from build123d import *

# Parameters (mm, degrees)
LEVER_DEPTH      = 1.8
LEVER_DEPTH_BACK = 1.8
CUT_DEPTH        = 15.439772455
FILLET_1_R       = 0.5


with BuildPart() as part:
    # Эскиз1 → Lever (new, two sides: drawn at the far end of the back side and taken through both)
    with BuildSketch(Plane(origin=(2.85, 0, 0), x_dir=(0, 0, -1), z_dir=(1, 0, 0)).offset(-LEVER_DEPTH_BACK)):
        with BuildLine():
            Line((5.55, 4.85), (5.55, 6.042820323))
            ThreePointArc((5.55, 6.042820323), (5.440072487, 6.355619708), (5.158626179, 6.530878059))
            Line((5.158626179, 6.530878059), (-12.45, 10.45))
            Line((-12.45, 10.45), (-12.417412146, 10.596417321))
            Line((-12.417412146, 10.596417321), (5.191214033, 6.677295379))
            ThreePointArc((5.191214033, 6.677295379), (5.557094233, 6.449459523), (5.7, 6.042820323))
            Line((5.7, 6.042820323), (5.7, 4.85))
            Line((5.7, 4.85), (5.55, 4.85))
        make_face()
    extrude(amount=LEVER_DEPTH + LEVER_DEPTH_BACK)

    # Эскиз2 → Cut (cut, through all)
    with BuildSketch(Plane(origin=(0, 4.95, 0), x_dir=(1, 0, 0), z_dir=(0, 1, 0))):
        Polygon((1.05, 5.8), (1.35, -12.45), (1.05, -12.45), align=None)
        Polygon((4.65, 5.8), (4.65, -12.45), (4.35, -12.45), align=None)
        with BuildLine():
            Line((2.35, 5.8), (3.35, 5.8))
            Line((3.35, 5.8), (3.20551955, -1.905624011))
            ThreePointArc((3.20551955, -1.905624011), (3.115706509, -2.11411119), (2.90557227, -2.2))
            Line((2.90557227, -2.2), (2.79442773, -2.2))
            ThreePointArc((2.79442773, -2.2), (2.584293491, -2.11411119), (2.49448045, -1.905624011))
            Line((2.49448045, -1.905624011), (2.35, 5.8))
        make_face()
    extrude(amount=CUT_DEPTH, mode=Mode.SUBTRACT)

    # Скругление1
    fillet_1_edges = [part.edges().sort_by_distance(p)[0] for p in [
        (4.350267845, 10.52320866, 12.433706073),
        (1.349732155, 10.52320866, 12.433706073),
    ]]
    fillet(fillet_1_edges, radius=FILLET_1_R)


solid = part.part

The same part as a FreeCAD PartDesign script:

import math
import FreeCAD as App
import Part
import Sketcher

V = App.Vector


def edges_at(feature, points):
    """Names of the edges that pass closest to the given points."""
    edges = feature.Shape.Edges
    near = lambda p: min(range(len(edges)), key=lambda i: edges[i].distToShape(Part.Vertex(*p))[0])
    return sorted({f"Edge{near(p) + 1}" for p in points})

doc = App.newDocument("Part")
body = doc.addObject("PartDesign::Body", "Body")

# Sketch on YZ plane
sketch1 = body.newObject("Sketcher::SketchObject", "Sketch")
sketch1.AttachmentSupport = (doc.getObject("YZ_Plane"), [""])
sketch1.MapMode = "FlatFace"
sketch1.AttachmentOffset = App.Placement(V(0, 0, 2.85), App.Rotation())
sketch1.addGeometry([
    Part.LineSegment(V(6.04, -5.55, 0), V(4.85, -5.55, 0)),  # 0
    Part.LineSegment(V(4.85, -5.55, 0), V(4.85, -5.7, 0)),  # 1
    Part.LineSegment(V(4.85, -5.7, 0), V(6.04, -5.7, 0)),  # 2
    Part.ArcOfCircle(Part.Circle(V(6.04, -5.05, 0), V(0, 0, 1), 0.65), math.radians(-90), math.radians(-13)),  # 3
    Part.LineSegment(V(6.68, -5.19, 0), V(10.6, 12.42, 0)),  # 4
    Part.LineSegment(V(10.6, 12.42, 0), V(10.45, 12.45, 0)),  # 5
    Part.LineSegment(V(10.45, 12.45, 0), V(6.53, -5.16, 0)),  # 6
    Part.ArcOfCircle(Part.Circle(V(6.04, -5.05, 0), V(0, 0, 1), 0.5), math.radians(-90), math.radians(-13)),  # 7
], False)
sketch1.addConstraint([
    Sketcher.Constraint("Coincident", 0, 2, 1, 1),
    Sketcher.Constraint("Coincident", 1, 2, 2, 1),
    Sketcher.Constraint("Tangent", 2, 2, 3, 1),
    Sketcher.Constraint("Tangent", 3, 2, 4, 1),
    Sketcher.Constraint("Coincident", 4, 2, 5, 1),
    Sketcher.Constraint("Coincident", 5, 2, 6, 1),
    Sketcher.Constraint("Tangent", 6, 2, 7, 2),
    Sketcher.Constraint("Tangent", 7, 1, 0, 1),
    Sketcher.Constraint("Horizontal", 0),
    Sketcher.Constraint("Vertical", 1),
    Sketcher.Constraint("Horizontal", 2),
    Sketcher.Constraint("Coincident", 7, 3, 3, 3),
    Sketcher.Constraint("Perpendicular", 4, 5),
    Sketcher.Constraint("Perpendicular", 5, 6),
    Sketcher.Constraint("Radius", 7, 0.5),
    Sketcher.Constraint("Radius", 3, 0.65),
    Sketcher.Constraint("DistanceY", 1, 2, -1, 1, 5.7),
    Sketcher.Constraint("DistanceY", 7, 3, 5, 2, 17.5),
    Sketcher.Constraint("DistanceX", -1, 1, 0, 2, 4.85),
    Sketcher.Constraint("DistanceX", -1, 1, 5, 2, 10.45),
    Sketcher.Constraint("DistanceX", 0, 2, 0, 1, 1.19282),
])
pad1 = body.newObject("PartDesign::Pad", "Pad")
pad1.Profile = sketch1
pad1.Type = "TwoLengths"
pad1.Length = 1.8
pad1.Length2 = 1.8

# Sketch on XZ plane
sketch2 = body.newObject("Sketcher::SketchObject", "Sketch001")
sketch2.AttachmentSupport = (doc.getObject("XZ_Plane"), [""])
sketch2.MapMode = "FlatFace"
sketch2.AttachmentOffset = App.Placement(V(0, 0, -4.95), App.Rotation())
sketch2.addGeometry([
    Part.LineSegment(V(1.35, 12.45, 0), V(1.05, -5.8, 0)),  # 0
    Part.LineSegment(V(1.05, -5.8, 0), V(1.05, 12.45, 0)),  # 1
    Part.LineSegment(V(1.05, 12.45, 0), V(1.35, 12.45, 0)),  # 2
    Part.LineSegment(V(4.65, 12.45, 0), V(4.65, -5.8, 0)),  # 3
    Part.LineSegment(V(4.65, -5.8, 0), V(4.35, 12.45, 0)),  # 4
    Part.LineSegment(V(4.35, 12.45, 0), V(4.65, 12.45, 0)),  # 5
    Part.LineSegment(V(3.35, -5.8, 0), V(2.35, -5.8, 0)),  # 6
    Part.LineSegment(V(2.35, -5.8, 0), V(2.49, 1.91, 0)),  # 7
    Part.ArcOfCircle(Part.Circle(V(2.79, 1.9, 0), V(0, 0, 1), 0.3), math.radians(90), math.radians(179)),  # 8
    Part.LineSegment(V(2.79, 2.2, 0), V(2.91, 2.2, 0)),  # 9
    Part.ArcOfCircle(Part.Circle(V(2.91, 1.9, 0), V(0, 0, 1), 0.3), math.radians(1), math.radians(90)),  # 10
    Part.LineSegment(V(3.21, 1.91, 0), V(3.35, -5.8, 0)),  # 11
], False)
sketch2.addConstraint([
    Sketcher.Constraint("Coincident", 0, 2, 1, 1),
    Sketcher.Constraint("Coincident", 1, 2, 2, 1),
    Sketcher.Constraint("Coincident", 2, 2, 0, 1),
    Sketcher.Constraint("Coincident", 3, 2, 4, 1),
    Sketcher.Constraint("Coincident", 4, 2, 5, 1),
    Sketcher.Constraint("Coincident", 5, 2, 3, 1),
    Sketcher.Constraint("Coincident", 6, 2, 7, 1),
    Sketcher.Constraint("Tangent", 7, 2, 8, 2),
    Sketcher.Constraint("Tangent", 8, 1, 9, 1),
    Sketcher.Constraint("Tangent", 9, 2, 10, 2),
    Sketcher.Constraint("Tangent", 10, 1, 11, 1),
    Sketcher.Constraint("Coincident", 11, 2, 6, 1),
    Sketcher.Constraint("Vertical", 1),
    Sketcher.Constraint("Horizontal", 2),
    Sketcher.Constraint("Vertical", 3),
    Sketcher.Constraint("Horizontal", 5),
    Sketcher.Constraint("Horizontal", 6),
    Sketcher.Constraint("Horizontal", 9),
    Sketcher.Constraint("Equal", 8, 10),
    Sketcher.Constraint("Horizontal", 0, 2, 3, 2),
    Sketcher.Constraint("Horizontal", 2, 2, 4, 2),
    Sketcher.Constraint("Horizontal", 3, 2, 6, 2),
    Sketcher.Constraint("Horizontal", 7, 2, 10, 1),
    Sketcher.Constraint("Equal", 2, 5),
    Sketcher.Constraint("Radius", 8, 0.3),
    Sketcher.Constraint("DistanceX", 6, 2, 6, 1, 1.0),
    Sketcher.Constraint("DistanceX", 2, 1, 2, 2, 0.3),
    Sketcher.Constraint("DistanceX", 2, 2, 4, 2, 3.0),
    Sketcher.Constraint("DistanceX", 2, 2, 6, 2, 1.0),
    Sketcher.Constraint("DistanceY", 6, 2, 8, 1, 8.0),
    Sketcher.Constraint("DistanceY", 1, 1, 1, 2, 18.25),
    Sketcher.Constraint("DistanceY", -1, 1, 8, 3, 1.9),
    Sketcher.Constraint("DistanceX", -1, 1, 0, 2, 1.05),
    Sketcher.Constraint("Distance", 7, 7.706978),
])
pocket1 = body.newObject("PartDesign::Pocket", "Pocket")
pocket1.Profile = sketch2
pocket1.Type = "ThroughAll"
doc.recompute()

fillet = body.newObject("PartDesign::Fillet", "Fillet")
fillet.Base = (pocket1, edges_at(pocket1, [(4.35, 10.523, 12.434), (1.35, 10.523, 12.434)]))
fillet.Radius = 0.5

doc.recompute()
